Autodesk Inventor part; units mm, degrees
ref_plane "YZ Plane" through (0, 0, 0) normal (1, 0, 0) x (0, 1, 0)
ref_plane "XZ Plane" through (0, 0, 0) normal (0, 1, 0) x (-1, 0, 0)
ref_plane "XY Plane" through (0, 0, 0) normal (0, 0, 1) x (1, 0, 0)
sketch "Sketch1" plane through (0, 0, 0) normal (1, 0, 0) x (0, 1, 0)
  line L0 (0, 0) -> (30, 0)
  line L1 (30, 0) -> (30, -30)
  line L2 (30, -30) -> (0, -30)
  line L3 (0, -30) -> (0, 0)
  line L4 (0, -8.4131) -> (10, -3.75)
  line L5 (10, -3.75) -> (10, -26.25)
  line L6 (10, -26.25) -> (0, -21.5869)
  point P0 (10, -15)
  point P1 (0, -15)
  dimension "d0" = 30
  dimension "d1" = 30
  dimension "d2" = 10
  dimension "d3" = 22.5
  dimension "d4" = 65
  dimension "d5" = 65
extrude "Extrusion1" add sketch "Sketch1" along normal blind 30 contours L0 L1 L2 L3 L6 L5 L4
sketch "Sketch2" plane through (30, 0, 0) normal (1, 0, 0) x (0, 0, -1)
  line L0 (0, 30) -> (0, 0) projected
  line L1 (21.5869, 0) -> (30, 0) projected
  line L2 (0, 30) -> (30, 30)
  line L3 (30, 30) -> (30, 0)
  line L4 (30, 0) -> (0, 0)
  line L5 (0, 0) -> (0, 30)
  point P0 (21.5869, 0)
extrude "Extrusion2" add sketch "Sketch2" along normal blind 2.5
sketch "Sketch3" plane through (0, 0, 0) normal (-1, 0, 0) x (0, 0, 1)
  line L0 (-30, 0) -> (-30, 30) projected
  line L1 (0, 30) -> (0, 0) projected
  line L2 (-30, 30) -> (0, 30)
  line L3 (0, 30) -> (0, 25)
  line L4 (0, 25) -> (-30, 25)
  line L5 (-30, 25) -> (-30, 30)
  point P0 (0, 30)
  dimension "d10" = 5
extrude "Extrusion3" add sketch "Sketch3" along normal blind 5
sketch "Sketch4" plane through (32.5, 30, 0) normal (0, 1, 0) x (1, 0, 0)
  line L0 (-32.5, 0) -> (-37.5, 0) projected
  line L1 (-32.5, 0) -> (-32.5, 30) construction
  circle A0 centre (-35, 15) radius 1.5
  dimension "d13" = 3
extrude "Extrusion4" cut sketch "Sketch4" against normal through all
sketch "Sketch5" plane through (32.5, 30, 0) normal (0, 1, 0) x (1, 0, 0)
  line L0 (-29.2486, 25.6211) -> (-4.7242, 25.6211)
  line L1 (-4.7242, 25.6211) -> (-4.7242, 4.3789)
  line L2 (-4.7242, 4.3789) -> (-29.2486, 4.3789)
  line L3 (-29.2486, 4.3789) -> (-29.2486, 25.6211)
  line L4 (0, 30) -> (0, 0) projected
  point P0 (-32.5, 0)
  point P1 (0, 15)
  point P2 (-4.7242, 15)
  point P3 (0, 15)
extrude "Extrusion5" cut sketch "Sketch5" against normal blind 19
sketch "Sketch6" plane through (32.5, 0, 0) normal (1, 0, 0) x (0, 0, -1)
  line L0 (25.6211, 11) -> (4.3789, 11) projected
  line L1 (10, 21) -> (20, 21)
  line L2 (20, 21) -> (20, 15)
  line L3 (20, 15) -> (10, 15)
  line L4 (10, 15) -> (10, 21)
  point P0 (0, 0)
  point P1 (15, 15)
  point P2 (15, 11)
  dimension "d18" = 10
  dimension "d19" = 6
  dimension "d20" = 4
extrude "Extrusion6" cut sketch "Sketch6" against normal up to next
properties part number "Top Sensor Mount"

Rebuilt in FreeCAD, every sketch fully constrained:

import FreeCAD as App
import Part
import Sketcher
Q = App.Units.Quantity

doc = App.newDocument("Part")
params = doc.addObject("Spreadsheet::Sheet", "Params")
for row, (alias, value) in enumerate([
    ("sketch1_width", "30 mm"),
    ("sketch1_height", "22.5 mm"),
    ("pad1_length", "30 mm"),
    ("sketch2_width", "30 mm"),
    ("pad2_length", "2.5 mm"),
    ("sketch3_width", "5 mm"),
    ("sketch3_height", "30 mm"),
    ("pad3_length", "5 mm"),
    ("sketch4_diameter", "3 mm"),
    ("pocket2_length", "19 mm"),
    ("sketch6_width", "6 mm"),
    ("sketch6_height", "10 mm"),
], start=1):
    params.set(f"A{row}", alias)
    params.set(f"B{row}", "=" + value)
    params.setAlias(f"B{row}", alias)

body = doc.addObject("PartDesign::Body", "Body")

# Sketch on YZ plane
sketch1 = body.newObject("Sketcher::SketchObject", "Sketch")
sketch1.AttachmentSupport = (doc.getObject("YZ_Plane"), [""])
sketch1.MapMode = "FlatFace"
sketch1.addGeometry([
    Part.LineSegment(App.Vector(30, 0, 0), App.Vector(0, 0, 0)),  # 0
    Part.LineSegment(App.Vector(0, 0, 0), App.Vector(0, -8, 0)),  # 1
    Part.LineSegment(App.Vector(0, -8, 0), App.Vector(10, -4, 0)),  # 2
    Part.LineSegment(App.Vector(10, -4, 0), App.Vector(10, -26, 0)),  # 3
    Part.LineSegment(App.Vector(10, -26, 0), App.Vector(0, -22, 0)),  # 4
    Part.LineSegment(App.Vector(0, -22, 0), App.Vector(0, -30, 0)),  # 5
    Part.LineSegment(App.Vector(0, -30, 0), App.Vector(30, -30, 0)),  # 6
    Part.LineSegment(App.Vector(30, -30, 0), App.Vector(30, 0, 0)),  # 7
], False)
sketch1.addConstraint([
    Sketcher.Constraint("Coincident", 0, 2, 1, 1),
    Sketcher.Constraint("Coincident", 1, 2, 2, 1),
    Sketcher.Constraint("Coincident", 2, 2, 3, 1),
    Sketcher.Constraint("Coincident", 3, 2, 4, 1),
    Sketcher.Constraint("Coincident", 4, 2, 5, 1),
    Sketcher.Constraint("Coincident", 5, 2, 6, 1),
    Sketcher.Constraint("Coincident", 6, 2, 7, 1),
    Sketcher.Constraint("Coincident", 7, 2, 0, 1),
    Sketcher.Constraint("Horizontal", 0),
    Sketcher.Constraint("Vertical", 1),
    Sketcher.Constraint("Vertical", 3),
    Sketcher.Constraint("Vertical", 5),
    Sketcher.Constraint("Horizontal", 6),
    Sketcher.Constraint("Vertical", 7),
    Sketcher.Constraint("Coincident", 0, 2, -1, 1),
    Sketcher.Constraint("PointOnObject", 4, 2, -2),
    Sketcher.Constraint("Equal", 1, 5),
    Sketcher.Constraint("Equal", 6, 7),
    Sketcher.Constraint("Equal", 2, 4),
    Sketcher.Constraint("DistanceX", 0, 2, 0, 1, Q("30 mm")),
    Sketcher.Constraint("DistanceY", 3, 2, 3, 1, Q("22.5 mm")),
    Sketcher.Constraint("DistanceX", -1, 1, 2, 2, Q("10 mm")),
    Sketcher.Constraint("Angle", 2, Q("25 deg")),
])
sketch1.setExpression("Constraints[19]", "Params.sketch1_width")
sketch1.setExpression("Constraints[20]", "Params.sketch1_height")
pad1 = body.newObject("PartDesign::Pad", "Pad")
pad1.Profile = sketch1
pad1.setExpression("Length", "Params.pad1_length")

# Sketch on YZ plane
sketch2 = body.newObject("Sketcher::SketchObject", "Sketch001")
sketch2.AttachmentSupport = (doc.getObject("YZ_Plane"), [""])
sketch2.MapMode = "FlatFace"
sketch2.AttachmentOffset = App.Placement(App.Vector(0, 0, 30), App.Rotation())
sketch2.addGeometry([
    Part.LineSegment(App.Vector(30, -30, 0), App.Vector(30, 0, 0)),
    Part.LineSegment(App.Vector(30, 0, 0), App.Vector(0, 0, 0)),
    Part.LineSegment(App.Vector(0, 0, 0), App.Vector(0, -30, 0)),
    Part.LineSegment(App.Vector(0, -30, 0), App.Vector(30, -30, 0)),
], False)
sketch2.addConstraint([
    Sketcher.Constraint("Coincident", 0, 2, 1, 1),
    Sketcher.Constraint("Coincident", 1, 2, 2, 1),
    Sketcher.Constraint("Coincident", 2, 2, 3, 1),
    Sketcher.Constraint("Coincident", 3, 2, 0, 1),
    Sketcher.Constraint("Vertical", 0),
    Sketcher.Constraint("Horizontal", 1),
    Sketcher.Constraint("Vertical", 2),
    Sketcher.Constraint("Horizontal", 3),
    Sketcher.Constraint("Coincident", 1, 2, -1, 1),
    Sketcher.Constraint("Equal", 3, 0),
    Sketcher.Constraint("DistanceX", 1, 2, 1, 1, Q("30 mm")),
])
sketch2.setExpression("Constraints[10]", "Params.sketch2_width")
pad2 = body.newObject("PartDesign::Pad", "Pad001")
pad2.Profile = sketch2
pad2.setExpression("Length", "Params.pad2_length")

# Sketch on YZ plane
sketch3 = body.newObject("Sketcher::SketchObject", "Sketch002")
sketch3.AttachmentSupport = (doc.getObject("YZ_Plane"), [""])
sketch3.MapMode = "FlatFace"
sketch3.addGeometry([
    Part.LineSegment(App.Vector(30, -30, 0), App.Vector(25, -30, 0)),
    Part.LineSegment(App.Vector(25, -30, 0), App.Vector(25, 0, 0)),
    Part.LineSegment(App.Vector(25, 0, 0), App.Vector(30, 0, 0)),
    Part.LineSegment(App.Vector(30, 0, 0), App.Vector(30, -30, 0)),
], False)
sketch3.addConstraint([
    Sketcher.Constraint("Coincident", 0, 2, 1, 1),
    Sketcher.Constraint("Coincident", 1, 2, 2, 1),
    Sketcher.Constraint("Coincident", 2, 2, 3, 1),
    Sketcher.Constraint("Coincident", 3, 2, 0, 1),
    Sketcher.Constraint("Horizontal", 0),
    Sketcher.Constraint("Vertical", 1),
    Sketcher.Constraint("Horizontal", 2),
    Sketcher.Constraint("Vertical", 3),
    Sketcher.Constraint("PointOnObject", 1, 2, -1),
    Sketcher.Constraint("DistanceX", 0, 2, 0, 1, Q("5 mm")),
    Sketcher.Constraint("DistanceY", 1, 1, 1, 2, Q("30 mm")),
    Sketcher.Constraint("DistanceX", -1, 1, 0, 2, Q("25 mm")),
])
sketch3.setExpression("Constraints[9]", "Params.sketch3_width")
sketch3.setExpression("Constraints[10]", "Params.sketch3_height")
pad3 = body.newObject("PartDesign::Pad", "Pad002")
pad3.Profile = sketch3
pad3.setExpression("Length", "Params.pad3_length")
pad3.Reversed = True

# Sketch on XZ plane
sketch4 = body.newObject("Sketcher::SketchObject", "Sketch003")
sketch4.AttachmentSupport = (doc.getObject("XZ_Plane"), [""])
sketch4.MapMode = "FlatFace"
sketch4.AttachmentOffset = App.Placement(App.Vector(0, 0, -30), App.Rotation())
sketch4.addGeometry(Part.Circle(App.Vector(-2.5, -15, 0), App.Vector(0, 0, 1), 1.5), False)
sketch4.addConstraint([
    Sketcher.Constraint("Diameter", 0, Q("3 mm")),
    Sketcher.Constraint("DistanceY", 0, 3, -1, 1, Q("15 mm")),
    Sketcher.Constraint("DistanceX", 0, 3, -1, 1, Q("2.5 mm")),
])
sketch4.setExpression("Constraints[0]", "Params.sketch4_diameter")
pocket1 = body.newObject("PartDesign::Pocket", "Pocket")
pocket1.Profile = sketch4
pocket1.Type = "ThroughAll"
pocket1.Reversed = True

# Sketch on XZ plane
sketch5 = body.newObject("Sketcher::SketchObject", "Sketch004")
sketch5.AttachmentSupport = (doc.getObject("XZ_Plane"), [""])
sketch5.MapMode = "FlatFace"
sketch5.AttachmentOffset = App.Placement(App.Vector(0, 0, -30), App.Rotation())
sketch5.addGeometry([
    Part.LineSegment(App.Vector(28, -26, 0), App.Vector(3, -26, 0)),
    Part.LineSegment(App.Vector(3, -26, 0), App.Vector(3, -4, 0)),
    Part.LineSegment(App.Vector(3, -4, 0), App.Vector(28, -4, 0)),
    Part.LineSegment(App.Vector(28, -4, 0), App.Vector(28, -26, 0)),
], False)
sketch5.addConstraint([
    Sketcher.Constraint("Coincident", 0, 2, 1, 1),
    Sketcher.Constraint("Coincident", 1, 2, 2, 1),
    Sketcher.Constraint("Coincident", 2, 2, 3, 1),
    Sketcher.Constraint("Coincident", 3, 2, 0, 1),
    Sketcher.Constraint("Horizontal", 0),
    Sketcher.Constraint("Vertical", 1),
    Sketcher.Constraint("Horizontal", 2),
    Sketcher.Constraint("Vertical", 3),
    Sketcher.Constraint("DistanceX", 0, 2, 0, 1, Q("24.5244 mm")),
    Sketcher.Constraint("DistanceY", 1, 1, 1, 2, Q("21.2422 mm")),
    Sketcher.Constraint("DistanceY", 0, 2, -1, 1, Q("25.621 mm")),
    Sketcher.Constraint("DistanceX", -1, 1, 0, 2, Q("3.2514 mm")),
])
pocket2 = body.newObject("PartDesign::Pocket", "Pocket001")
pocket2.Profile = sketch5
pocket2.setExpression("Length", "Params.pocket2_length")
pocket2.Reversed = True

# Sketch on YZ plane
sketch6 = body.newObject("Sketcher::SketchObject", "Sketch005")
sketch6.AttachmentSupport = (doc.getObject("YZ_Plane"), [""])
sketch6.MapMode = "FlatFace"
sketch6.AttachmentOffset = App.Placement(App.Vector(0, 0, 32.5), App.Rotation())
sketch6.addGeometry([
    Part.LineSegment(App.Vector(21, -20, 0), App.Vector(21, -10, 0)),
    Part.LineSegment(App.Vector(21, -10, 0), App.Vector(15, -10, 0)),
    Part.LineSegment(App.Vector(15, -10, 0), App.Vector(15, -20, 0)),
    Part.LineSegment(App.Vector(15, -20, 0), App.Vector(21, -20, 0)),
], False)
sketch6.addConstraint([
    Sketcher.Constraint("Coincident", 0, 2, 1, 1),
    Sketcher.Constraint("Coincident", 1, 2, 2, 1),
    Sketcher.Constraint("Coincident", 2, 2, 3, 1),
    Sketcher.Constraint("Coincident", 3, 2, 0, 1),
    Sketcher.Constraint("Vertical", 0),
    Sketcher.Constraint("Horizontal", 1),
    Sketcher.Constraint("Vertical", 2),
    Sketcher.Constraint("Horizontal", 3),
    Sketcher.Constraint("DistanceX", 1, 2, 1, 1, Q("6 mm")),
    Sketcher.Constraint("DistanceY", 0, 1, 0, 2, Q("10 mm")),
    Sketcher.Constraint("DistanceY", 0, 2, -1, 1, Q("10 mm")),
    Sketcher.Constraint("DistanceX", -1, 1, 0, 2, Q("21 mm")),
])
sketch6.setExpression("Constraints[8]", "Params.sketch6_width")
sketch6.setExpression("Constraints[9]", "Params.sketch6_height")
pocket3 = body.newObject("PartDesign::Pocket", "Pocket002")
pocket3.Profile = sketch6
pocket3.Type = "UpToFirst"

doc.recompute()
